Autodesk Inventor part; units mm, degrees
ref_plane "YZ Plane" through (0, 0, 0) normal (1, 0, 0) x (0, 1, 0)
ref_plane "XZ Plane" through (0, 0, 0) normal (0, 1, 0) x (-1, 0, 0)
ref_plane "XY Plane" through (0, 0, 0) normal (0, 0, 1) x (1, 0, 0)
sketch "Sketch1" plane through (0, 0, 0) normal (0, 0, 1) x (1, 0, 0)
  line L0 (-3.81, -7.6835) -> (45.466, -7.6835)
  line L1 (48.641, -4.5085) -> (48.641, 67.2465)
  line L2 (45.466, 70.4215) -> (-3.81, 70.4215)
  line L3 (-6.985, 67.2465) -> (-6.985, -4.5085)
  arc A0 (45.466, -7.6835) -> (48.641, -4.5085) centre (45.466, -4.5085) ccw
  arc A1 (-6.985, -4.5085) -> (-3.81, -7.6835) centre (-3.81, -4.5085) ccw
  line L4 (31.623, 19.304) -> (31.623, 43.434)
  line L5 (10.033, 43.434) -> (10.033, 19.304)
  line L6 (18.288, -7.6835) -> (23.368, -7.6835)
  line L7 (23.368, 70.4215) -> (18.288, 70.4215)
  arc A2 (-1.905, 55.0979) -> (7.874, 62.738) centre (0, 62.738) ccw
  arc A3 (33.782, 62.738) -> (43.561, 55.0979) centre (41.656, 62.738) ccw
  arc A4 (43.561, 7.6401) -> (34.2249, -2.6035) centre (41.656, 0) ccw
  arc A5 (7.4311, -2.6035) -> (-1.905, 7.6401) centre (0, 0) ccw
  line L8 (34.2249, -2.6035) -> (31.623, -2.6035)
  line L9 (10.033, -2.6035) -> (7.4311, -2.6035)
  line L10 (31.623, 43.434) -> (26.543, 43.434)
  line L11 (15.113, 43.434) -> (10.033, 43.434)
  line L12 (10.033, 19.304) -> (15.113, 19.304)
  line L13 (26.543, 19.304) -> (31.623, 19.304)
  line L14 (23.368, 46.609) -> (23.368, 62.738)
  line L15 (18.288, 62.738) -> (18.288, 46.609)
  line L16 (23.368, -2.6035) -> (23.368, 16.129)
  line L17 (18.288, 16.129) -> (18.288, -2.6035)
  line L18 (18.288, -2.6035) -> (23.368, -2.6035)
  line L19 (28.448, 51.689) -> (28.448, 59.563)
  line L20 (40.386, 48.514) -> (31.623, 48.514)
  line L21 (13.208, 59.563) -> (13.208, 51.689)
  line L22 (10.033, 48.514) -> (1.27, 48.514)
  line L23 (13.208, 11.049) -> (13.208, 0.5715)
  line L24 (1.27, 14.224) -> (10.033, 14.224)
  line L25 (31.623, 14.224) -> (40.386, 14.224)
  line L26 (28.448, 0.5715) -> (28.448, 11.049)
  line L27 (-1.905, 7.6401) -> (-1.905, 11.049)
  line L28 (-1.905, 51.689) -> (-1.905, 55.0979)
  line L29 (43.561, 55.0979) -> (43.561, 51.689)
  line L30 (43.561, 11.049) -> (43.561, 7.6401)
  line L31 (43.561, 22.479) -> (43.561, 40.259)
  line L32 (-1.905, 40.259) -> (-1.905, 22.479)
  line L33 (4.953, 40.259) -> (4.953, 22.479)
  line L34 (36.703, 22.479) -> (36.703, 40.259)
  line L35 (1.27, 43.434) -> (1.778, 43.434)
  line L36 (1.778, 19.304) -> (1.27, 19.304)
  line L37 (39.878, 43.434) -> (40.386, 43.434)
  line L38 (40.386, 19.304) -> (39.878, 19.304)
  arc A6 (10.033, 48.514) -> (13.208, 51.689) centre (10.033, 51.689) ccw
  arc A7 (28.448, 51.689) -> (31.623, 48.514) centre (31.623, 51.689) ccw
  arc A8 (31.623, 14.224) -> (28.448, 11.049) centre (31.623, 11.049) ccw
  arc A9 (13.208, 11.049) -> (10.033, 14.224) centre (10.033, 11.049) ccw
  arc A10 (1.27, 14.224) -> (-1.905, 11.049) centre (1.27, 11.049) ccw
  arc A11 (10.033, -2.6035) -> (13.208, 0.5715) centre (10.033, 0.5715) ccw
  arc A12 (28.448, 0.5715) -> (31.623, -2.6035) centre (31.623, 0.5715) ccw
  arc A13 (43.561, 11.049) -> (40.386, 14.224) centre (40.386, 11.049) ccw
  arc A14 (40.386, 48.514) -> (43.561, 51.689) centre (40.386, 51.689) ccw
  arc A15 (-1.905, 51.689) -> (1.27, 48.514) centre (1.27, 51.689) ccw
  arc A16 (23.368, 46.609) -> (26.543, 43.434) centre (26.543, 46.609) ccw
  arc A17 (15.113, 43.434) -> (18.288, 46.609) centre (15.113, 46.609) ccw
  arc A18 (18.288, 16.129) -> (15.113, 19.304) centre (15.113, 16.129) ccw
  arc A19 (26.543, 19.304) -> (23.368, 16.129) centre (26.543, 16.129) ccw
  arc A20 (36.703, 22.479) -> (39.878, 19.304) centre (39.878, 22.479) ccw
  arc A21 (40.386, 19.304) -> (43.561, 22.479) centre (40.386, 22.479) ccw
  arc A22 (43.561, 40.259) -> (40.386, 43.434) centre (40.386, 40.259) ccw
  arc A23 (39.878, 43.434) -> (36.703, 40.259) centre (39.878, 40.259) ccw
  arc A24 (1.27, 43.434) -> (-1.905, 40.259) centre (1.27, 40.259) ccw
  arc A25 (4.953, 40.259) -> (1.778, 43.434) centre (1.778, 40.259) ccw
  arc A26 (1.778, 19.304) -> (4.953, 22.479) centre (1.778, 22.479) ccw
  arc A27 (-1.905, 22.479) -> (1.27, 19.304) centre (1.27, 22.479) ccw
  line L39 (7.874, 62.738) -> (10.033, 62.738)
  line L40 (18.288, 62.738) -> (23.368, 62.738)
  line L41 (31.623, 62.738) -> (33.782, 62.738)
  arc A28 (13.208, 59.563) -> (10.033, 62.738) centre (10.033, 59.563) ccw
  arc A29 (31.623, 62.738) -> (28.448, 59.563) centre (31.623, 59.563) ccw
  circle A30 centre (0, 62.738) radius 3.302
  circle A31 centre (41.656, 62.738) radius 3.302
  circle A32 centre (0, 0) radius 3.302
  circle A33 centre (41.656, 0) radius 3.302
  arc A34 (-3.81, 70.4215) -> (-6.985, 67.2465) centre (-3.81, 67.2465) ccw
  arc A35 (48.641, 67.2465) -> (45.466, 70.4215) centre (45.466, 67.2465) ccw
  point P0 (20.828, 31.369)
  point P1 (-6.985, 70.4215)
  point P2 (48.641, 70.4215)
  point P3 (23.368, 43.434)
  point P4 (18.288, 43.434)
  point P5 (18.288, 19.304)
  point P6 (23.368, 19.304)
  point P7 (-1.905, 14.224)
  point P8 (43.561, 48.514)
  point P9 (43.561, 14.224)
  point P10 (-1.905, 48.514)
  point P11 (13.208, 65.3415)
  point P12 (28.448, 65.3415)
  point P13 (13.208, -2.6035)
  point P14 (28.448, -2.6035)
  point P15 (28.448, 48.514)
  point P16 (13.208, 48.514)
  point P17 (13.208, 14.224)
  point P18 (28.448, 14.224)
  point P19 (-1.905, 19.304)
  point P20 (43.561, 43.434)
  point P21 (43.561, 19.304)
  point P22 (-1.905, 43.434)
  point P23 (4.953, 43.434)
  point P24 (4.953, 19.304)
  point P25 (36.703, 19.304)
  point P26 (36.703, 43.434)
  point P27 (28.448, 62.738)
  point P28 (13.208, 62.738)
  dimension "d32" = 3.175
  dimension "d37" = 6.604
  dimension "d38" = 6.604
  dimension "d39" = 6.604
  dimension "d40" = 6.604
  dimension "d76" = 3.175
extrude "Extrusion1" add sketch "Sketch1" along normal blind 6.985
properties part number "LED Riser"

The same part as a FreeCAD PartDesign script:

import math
import FreeCAD as App
import Part
import Sketcher
from FreeCAD import Vector
Q = App.Units.Quantity

doc = App.newDocument("Part")
body = doc.addObject("PartDesign::Body", "Body")

# Sketch on XY plane
sketch1 = body.newObject("Sketcher::SketchObject", "Sketch")
sketch1.AttachmentSupport = (doc.getObject("XY_Plane"), [""])
sketch1.MapMode = "FlatFace"
sketch1.addGeometry([
    Part.ArcOfCircle(Part.Circle(Vector(-3.8, -4.5, 0), Vector(0, 0, 1), 3.2), math.radians(180), math.radians(270)),  # 0
    Part.LineSegment(Vector(-3.8, -7.7, 0), Vector(45.5, -7.7, 0)),  # 1
    Part.ArcOfCircle(Part.Circle(Vector(45.5, -4.5, 0), Vector(0, 0, 1), 3.2), math.radians(-90), math.radians(0)),  # 2
    Part.LineSegment(Vector(48.6, -4.5, 0), Vector(48.6, 67.2, 0)),  # 3
    Part.ArcOfCircle(Part.Circle(Vector(45.5, 67.2, 0), Vector(0, 0, 1), 3.2), math.radians(0), math.radians(90)),  # 4
    Part.LineSegment(Vector(45.5, 70.4, 0), Vector(-3.8, 70.4, 0)),  # 5
    Part.ArcOfCircle(Part.Circle(Vector(-3.8, 67.2, 0), Vector(0, 0, 1), 3.2), math.radians(90), math.radians(180)),  # 6
    Part.LineSegment(Vector(-7, 67.2, 0), Vector(-7, -4.5, 0)),  # 7
    Part.Circle(Vector(0, 0, 0), Vector(0, 0, 1), 3.3),  # 8
    Part.LineSegment(Vector(10, -2.6, 0), Vector(7.4, -2.6, 0)),  # 9
    Part.ArcOfCircle(Part.Circle(Vector(0, 0, 0), Vector(0, 0, 1), 7.9), math.radians(-19), math.radians(104)),  # 10
    Part.LineSegment(Vector(-1.9, 7.6, 0), Vector(-1.9, 11, 0)),  # 11
    Part.ArcOfCircle(Part.Circle(Vector(1.3, 11, 0), Vector(0, 0, 1), 3.2), math.radians(90), math.radians(180)),  # 12
    Part.LineSegment(Vector(1.3, 14.2, 0), Vector(10, 14.2, 0)),  # 13
    Part.ArcOfCircle(Part.Circle(Vector(10, 11, 0), Vector(0, 0, 1), 3.2), math.radians(0), math.radians(90)),  # 14
    Part.LineSegment(Vector(13.2, 11, 0), Vector(13.2, 0.6, 0)),  # 15
    Part.ArcOfCircle(Part.Circle(Vector(10, 0.6, 0), Vector(0, 0, 1), 3.2), math.radians(-90), math.radians(0)),  # 16
    Part.LineSegment(Vector(31.6, 43.4, 0), Vector(31.6, 19.3, 0)),  # 17
    Part.LineSegment(Vector(31.6, 19.3, 0), Vector(26.5, 19.3, 0)),  # 18
    Part.ArcOfCircle(Part.Circle(Vector(26.5, 16.1, 0), Vector(0, 0, 1), 3.2), math.radians(90), math.radians(180)),  # 19
    Part.LineSegment(Vector(23.4, 16.1, 0), Vector(23.4, -2.6, 0)),  # 20
    Part.LineSegment(Vector(23.4, -2.6, 0), Vector(18.3, -2.6, 0)),  # 21
    Part.LineSegment(Vector(18.3, -2.6, 0), Vector(18.3, 16.1, 0)),  # 22
    Part.ArcOfCircle(Part.Circle(Vector(15.1, 16.1, 0), Vector(0, 0, 1), 3.2), math.radians(0), math.radians(90)),  # 23
    Part.LineSegment(Vector(15.1, 19.3, 0), Vector(10, 19.3, 0)),  # 24
    Part.LineSegment(Vector(10, 19.3, 0), Vector(10, 43.4, 0)),  # 25
    Part.LineSegment(Vector(10, 43.4, 0), Vector(15.1, 43.4, 0)),  # 26
    Part.ArcOfCircle(Part.Circle(Vector(15.1, 46.6, 0), Vector(0, 0, 1), 3.2), math.radians(-90), math.radians(0)),  # 27
    Part.LineSegment(Vector(18.3, 46.6, 0), Vector(18.3, 62.7, 0)),  # 28
    Part.LineSegment(Vector(18.3, 62.7, 0), Vector(23.4, 62.7, 0)),  # 29
    Part.LineSegment(Vector(23.4, 62.7, 0), Vector(23.4, 46.6, 0)),  # 30
    Part.ArcOfCircle(Part.Circle(Vector(26.5, 46.6, 0), Vector(0, 0, 1), 3.2), math.radians(180), math.radians(270)),  # 31
    Part.LineSegment(Vector(26.5, 43.4, 0), Vector(31.6, 43.4, 0)),  # 32
    Part.Circle(Vector(41.7, 0, 0), Vector(0, 0, 1), 3.3),  # 33
    Part.LineSegment(Vector(43.6, 11, 0), Vector(43.6, 7.6, 0)),  # 34
    Part.ArcOfCircle(Part.Circle(Vector(41.7, 0, 0), Vector(0, 0, 1), 7.9), math.radians(76), math.radians(199)),  # 35
    Part.LineSegment(Vector(34.2, -2.6, 0), Vector(31.6, -2.6, 0)),  # 36
    Part.ArcOfCircle(Part.Circle(Vector(31.6, 0.6, 0), Vector(0, 0, 1), 3.2), math.radians(180), math.radians(270)),  # 37
    Part.LineSegment(Vector(28.4, 0.6, 0), Vector(28.4, 11, 0)),  # 38
    Part.ArcOfCircle(Part.Circle(Vector(31.6, 11, 0), Vector(0, 0, 1), 3.2), math.radians(90), math.radians(180)),  # 39
    Part.LineSegment(Vector(31.6, 14.2, 0), Vector(40.4, 14.2, 0)),  # 40
    Part.ArcOfCircle(Part.Circle(Vector(40.4, 11, 0), Vector(0, 0, 1), 3.2), math.radians(0), math.radians(90)),  # 41
    Part.LineSegment(Vector(-1.9, 22.5, 0), Vector(-1.9, 40.3, 0)),  # 42
    Part.ArcOfCircle(Part.Circle(Vector(1.3, 40.3, 0), Vector(0, 0, 1), 3.2), math.radians(90), math.radians(180)),  # 43
    Part.LineSegment(Vector(1.3, 43.4, 0), Vector(1.8, 43.4, 0)),  # 44
    Part.ArcOfCircle(Part.Circle(Vector(1.8, 40.3, 0), Vector(0, 0, 1), 3.2), math.radians(0), math.radians(90)),  # 45
    Part.LineSegment(Vector(5, 40.3, 0), Vector(5, 22.5, 0)),  # 46
    Part.ArcOfCircle(Part.Circle(Vector(1.8, 22.5, 0), Vector(0, 0, 1), 3.2), math.radians(-90), math.radians(0)),  # 47
    Part.LineSegment(Vector(1.8, 19.3, 0), Vector(1.3, 19.3, 0)),  # 48
    Part.ArcOfCircle(Part.Circle(Vector(1.3, 22.5, 0), Vector(0, 0, 1), 3.2), math.radians(180), math.radians(270)),  # 49
    Part.LineSegment(Vector(-1.9, 51.7, 0), Vector(-1.9, 55.1, 0)),  # 50
    Part.ArcOfCircle(Part.Circle(Vector(0, 62.7, 0), Vector(0, 0, 1), 7.9), math.radians(-104), math.radians(0)),  # 51
    Part.LineSegment(Vector(7.9, 62.7, 0), Vector(10, 62.7, 0)),  # 52
    Part.ArcOfCircle(Part.Circle(Vector(10, 59.6, 0), Vector(0, 0, 1), 3.2), math.radians(0), math.radians(90)),  # 53
    Part.LineSegment(Vector(13.2, 59.6, 0), Vector(13.2, 51.7, 0)),  # 54
    Part.ArcOfCircle(Part.Circle(Vector(10, 51.7, 0), Vector(0, 0, 1), 3.2), math.radians(-90), math.radians(0)),  # 55
    Part.LineSegment(Vector(10, 48.5, 0), Vector(1.3, 48.5, 0)),  # 56
    Part.ArcOfCircle(Part.Circle(Vector(1.3, 51.7, 0), Vector(0, 0, 1), 3.2), math.radians(180), math.radians(270)),  # 57
    Part.Circle(Vector(0, 62.7, 0), Vector(0, 0, 1), 3.3),  # 58
    Part.LineSegment(Vector(43.6, 40.3, 0), Vector(43.6, 22.5, 0)),  # 59
    Part.ArcOfCircle(Part.Circle(Vector(40.4, 22.5, 0), Vector(0, 0, 1), 3.2), math.radians(-90), math.radians(0)),  # 60
    Part.LineSegment(Vector(40.4, 19.3, 0), Vector(39.9, 19.3, 0)),  # 61
    Part.ArcOfCircle(Part.Circle(Vector(39.9, 22.5, 0), Vector(0, 0, 1), 3.2), math.radians(180), math.radians(270)),  # 62
    Part.LineSegment(Vector(36.7, 22.5, 0), Vector(36.7, 40.3, 0)),  # 63
    Part.ArcOfCircle(Part.Circle(Vector(39.9, 40.3, 0), Vector(0, 0, 1), 3.2), math.radians(90), math.radians(180)),  # 64
    Part.LineSegment(Vector(39.9, 43.4, 0), Vector(40.4, 43.4, 0)),  # 65
    Part.ArcOfCircle(Part.Circle(Vector(40.4, 40.3, 0), Vector(0, 0, 1), 3.2), math.radians(0), math.radians(90)),  # 66
    Part.LineSegment(Vector(31.6, 62.7, 0), Vector(33.8, 62.7, 0)),  # 67
    Part.ArcOfCircle(Part.Circle(Vector(41.7, 62.7, 0), Vector(0, 0, 1), 7.9), math.radians(180), math.radians(284)),  # 68
    Part.LineSegment(Vector(43.6, 55.1, 0), Vector(43.6, 51.7, 0)),  # 69
    Part.ArcOfCircle(Part.Circle(Vector(40.4, 51.7, 0), Vector(0, 0, 1), 3.2), math.radians(-90), math.radians(0)),  # 70
    Part.LineSegment(Vector(40.4, 48.5, 0), Vector(31.6, 48.5, 0)),  # 71
    Part.ArcOfCircle(Part.Circle(Vector(31.6, 51.7, 0), Vector(0, 0, 1), 3.2), math.radians(180), math.radians(270)),  # 72
    Part.LineSegment(Vector(28.4, 51.7, 0), Vector(28.4, 59.6, 0)),  # 73
    Part.ArcOfCircle(Part.Circle(Vector(31.6, 59.6, 0), Vector(0, 0, 1), 3.2), math.radians(90), math.radians(180)),  # 74
    Part.Circle(Vector(41.7, 62.7, 0), Vector(0, 0, 1), 3.3),  # 75
], False)
sketch1.addConstraint([
    Sketcher.Constraint("Tangent", 0, 2, 1, 1),
    Sketcher.Constraint("Tangent", 1, 2, 2, 1),
    Sketcher.Constraint("Tangent", 2, 2, 3, 1),
    Sketcher.Constraint("Tangent", 3, 2, 4, 1),
    Sketcher.Constraint("Tangent", 4, 2, 5, 1),
    Sketcher.Constraint("Tangent", 5, 2, 6, 1),
    Sketcher.Constraint("Tangent", 6, 2, 7, 1),
    Sketcher.Constraint("Tangent", 7, 2, 0, 1),
    Sketcher.Constraint("Coincident", 9, 2, 10, 1),
    Sketcher.Constraint("Coincident", 10, 2, 11, 1),
    Sketcher.Constraint("Tangent", 11, 2, 12, 2),
    Sketcher.Constraint("Tangent", 12, 1, 13, 1),
    Sketcher.Constraint("Tangent", 13, 2, 14, 2),
    Sketcher.Constraint("Tangent", 14, 1, 15, 1),
    Sketcher.Constraint("Tangent", 15, 2, 16, 2),
    Sketcher.Constraint("Tangent", 16, 1, 9, 1),
    Sketcher.Constraint("Coincident", 17, 2, 18, 1),
    Sketcher.Constraint("Tangent", 18, 2, 19, 1),
    Sketcher.Constraint("Tangent", 19, 2, 20, 1),
    Sketcher.Constraint("Coincident", 20, 2, 21, 1),
    Sketcher.Constraint("Coincident", 21, 2, 22, 1),
    Sketcher.Constraint("Tangent", 22, 2, 23, 1),
    Sketcher.Constraint("Tangent", 23, 2, 24, 1),
    Sketcher.Constraint("Coincident", 24, 2, 25, 1),
    Sketcher.Constraint("Coincident", 25, 2, 26, 1),
    Sketcher.Constraint("Tangent", 26, 2, 27, 1),
    Sketcher.Constraint("Tangent", 27, 2, 28, 1),
    Sketcher.Constraint("Coincident", 28, 2, 29, 1),
    Sketcher.Constraint("Coincident", 29, 2, 30, 1),
    Sketcher.Constraint("Tangent", 30, 2, 31, 1),
    Sketcher.Constraint("Tangent", 31, 2, 32, 1),
    Sketcher.Constraint("Coincident", 32, 2, 17, 1),
    Sketcher.Constraint("Coincident", 34, 2, 35, 1),
    Sketcher.Constraint("Coincident", 35, 2, 36, 1),
    Sketcher.Constraint("Tangent", 36, 2, 37, 2),
    Sketcher.Constraint("Tangent", 37, 1, 38, 1),
    Sketcher.Constraint("Tangent", 38, 2, 39, 2),
    Sketcher.Constraint("Tangent", 39, 1, 40, 1),
    Sketcher.Constraint("Tangent", 40, 2, 41, 2),
    Sketcher.Constraint("Tangent", 41, 1, 34, 1),
    Sketcher.Constraint("Tangent", 42, 2, 43, 2),
    Sketcher.Constraint("Tangent", 43, 1, 44, 1),
    Sketcher.Constraint("Tangent", 44, 2, 45, 2),
    Sketcher.Constraint("Tangent", 45, 1, 46, 1),
    Sketcher.Constraint("Tangent", 46, 2, 47, 2),
    Sketcher.Constraint("Tangent", 47, 1, 48, 1),
    Sketcher.Constraint("Tangent", 48, 2, 49, 2),
    Sketcher.Constraint("Tangent", 49, 1, 42, 1),
    Sketcher.Constraint("Coincident", 50, 2, 51, 1),
    Sketcher.Constraint("Coincident", 51, 2, 52, 1),
    Sketcher.Constraint("Tangent", 52, 2, 53, 2),
    Sketcher.Constraint("Tangent", 53, 1, 54, 1),
    Sketcher.Constraint("Tangent", 54, 2, 55, 2),
    Sketcher.Constraint("Tangent", 55, 1, 56, 1),
    Sketcher.Constraint("Tangent", 56, 2, 57, 2),
    Sketcher.Constraint("Tangent", 57, 1, 50, 1),
    Sketcher.Constraint("Tangent", 59, 2, 60, 2),
    Sketcher.Constraint("Tangent", 60, 1, 61, 1),
    Sketcher.Constraint("Tangent", 61, 2, 62, 2),
    Sketcher.Constraint("Tangent", 62, 1, 63, 1),
    Sketcher.Constraint("Tangent", 63, 2, 64, 2),
    Sketcher.Constraint("Tangent", 64, 1, 65, 1),
    Sketcher.Constraint("Tangent", 65, 2, 66, 2),
    Sketcher.Constraint("Tangent", 66, 1, 59, 1),
    Sketcher.Constraint("Coincident", 67, 2, 68, 1),
    Sketcher.Constraint("Coincident", 68, 2, 69, 1),
    Sketcher.Constraint("Tangent", 69, 2, 70, 2),
    Sketcher.Constraint("Tangent", 70, 1, 71, 1),
    Sketcher.Constraint("Tangent", 71, 2, 72, 2),
    Sketcher.Constraint("Tangent", 72, 1, 73, 1),
    Sketcher.Constraint("Tangent", 73, 2, 74, 2),
    Sketcher.Constraint("Tangent", 74, 1, 67, 1),
    Sketcher.Constraint("Horizontal", 1),
    Sketcher.Constraint("Vertical", 3),
    Sketcher.Constraint("Horizontal", 5),
    Sketcher.Constraint("Vertical", 7),
    Sketcher.Constraint("Horizontal", 9),
    Sketcher.Constraint("Vertical", 11),
    Sketcher.Constraint("Horizontal", 13),
    Sketcher.Constraint("Vertical", 15),
    Sketcher.Constraint("Vertical", 17),
    Sketcher.Constraint("Horizontal", 18),
    Sketcher.Constraint("Vertical", 20),
    Sketcher.Constraint("Horizontal", 21),
    Sketcher.Constraint("Vertical", 22),
    Sketcher.Constraint("Horizontal", 24),
    Sketcher.Constraint("Vertical", 25),
    Sketcher.Constraint("Horizontal", 26),
    Sketcher.Constraint("Vertical", 28),
    Sketcher.Constraint("Horizontal", 29),
    Sketcher.Constraint("Vertical", 30),
    Sketcher.Constraint("Horizontal", 32),
    Sketcher.Constraint("Vertical", 34),
    Sketcher.Constraint("Horizontal", 36),
    Sketcher.Constraint("Vertical", 38),
    Sketcher.Constraint("Horizontal", 40),
    Sketcher.Constraint("Vertical", 42),
    Sketcher.Constraint("Horizontal", 44),
    Sketcher.Constraint("Vertical", 46),
    Sketcher.Constraint("Horizontal", 48),
    Sketcher.Constraint("Vertical", 50),
    Sketcher.Constraint("Horizontal", 52),
    Sketcher.Constraint("Vertical", 54),
    Sketcher.Constraint("Horizontal", 56),
    Sketcher.Constraint("Vertical", 59),
    Sketcher.Constraint("Horizontal", 61),
    Sketcher.Constraint("Vertical", 63),
    Sketcher.Constraint("Horizontal", 65),
    Sketcher.Constraint("Horizontal", 67),
    Sketcher.Constraint("Vertical", 69),
    Sketcher.Constraint("Horizontal", 71),
    Sketcher.Constraint("Vertical", 73),
    Sketcher.Constraint("Coincident", 8, 3, -1, 1),
    Sketcher.Constraint("Coincident", 10, 3, -1, 1),
    Sketcher.Constraint("Coincident", 35, 3, 33, 3),
    Sketcher.Constraint("Coincident", 58, 3, 51, 3),
    Sketcher.Constraint("Coincident", 75, 3, 68, 3),
    Sketcher.Constraint("Equal", 0, 2),
    Sketcher.Constraint("Equal", 2, 4),
    Sketcher.Constraint("Equal", 4, 6),
    Sketcher.Constraint("Equal", 6, 12),
    Sketcher.Constraint("Equal", 12, 14),
    Sketcher.Constraint("Equal", 14, 16),
    Sketcher.Constraint("Equal", 16, 19),
    Sketcher.Constraint("Equal", 19, 23),
    Sketcher.Constraint("Equal", 23, 27),
    Sketcher.Constraint("Equal", 27, 31),
    Sketcher.Constraint("Equal", 8, 33),
    Sketcher.Constraint("Equal", 10, 35),
    Sketcher.Constraint("Equal", 31, 37),
    Sketcher.Constraint("Equal", 37, 39),
    Sketcher.Constraint("Equal", 39, 41),
    Sketcher.Constraint("Equal", 41, 43),
    Sketcher.Constraint("Equal", 43, 45),
    Sketcher.Constraint("Equal", 45, 47),
    Sketcher.Constraint("Equal", 47, 49),
    Sketcher.Constraint("Equal", 35, 51),
    Sketcher.Constraint("Equal", 49, 53),
    Sketcher.Constraint("Equal", 53, 55),
    Sketcher.Constraint("Equal", 55, 57),
    Sketcher.Constraint("Equal", 33, 58),
    Sketcher.Constraint("Equal", 57, 60),
    Sketcher.Constraint("Equal", 60, 62),
    Sketcher.Constraint("Equal", 62, 64),
    Sketcher.Constraint("Equal", 64, 66),
    Sketcher.Constraint("Equal", 51, 68),
    Sketcher.Constraint("Equal", 66, 70),
    Sketcher.Constraint("Equal", 70, 72),
    Sketcher.Constraint("Equal", 72, 74),
    Sketcher.Constraint("Equal", 58, 75),
    Sketcher.Constraint("PointOnObject", 33, 3, -1),
    Sketcher.Constraint("PointOnObject", 51, 3, -2),
    Sketcher.Constraint("Horizontal", 19, 3, 23, 3),
    Sketcher.Constraint("Horizontal", 27, 3, 31, 3),
    Sketcher.Constraint("Horizontal", 16, 3, 37, 3),
    Sketcher.Constraint("Horizontal", 14, 3, 39, 3),
    Sketcher.Constraint("Horizontal", 49, 3, 60, 3),
    Sketcher.Constraint("Horizontal", 45, 3, 64, 3),
    Sketcher.Constraint("Horizontal", 58, 3, 68, 3),
    Sketcher.Constraint("Horizontal", 57, 3, 70, 3),
    Sketcher.Constraint("Horizontal", 53, 3, 74, 3),
    Sketcher.Constraint("Horizontal", 16, 1, 20, 2),
    Sketcher.Constraint("Horizontal", 75, 3, 28, 2),
    Sketcher.Constraint("Horizontal", 10, 2, 34, 2),
    Sketcher.Constraint("Horizontal", 32, 2, 43, 1),
    Sketcher.Constraint("Horizontal", 24, 2, 47, 1),
    Sketcher.Constraint("Horizontal", 29, 2, 51, 2),
    Sketcher.Constraint("Horizontal", 50, 2, 68, 2),
    Sketcher.Constraint("Vertical", 23, 3, 27, 3),
    Sketcher.Constraint("Vertical", 19, 3, 31, 3),
    Sketcher.Constraint("Vertical", 12, 3, 43, 3),
    Sketcher.Constraint("Vertical", 16, 3, 53, 3),
    Sketcher.Constraint("Vertical", 49, 3, 57, 3),
    Sketcher.Constraint("Vertical", 41, 3, 60, 3),
    Sketcher.Constraint("Vertical", 35, 3, 68, 3),
    Sketcher.Constraint("Vertical", 39, 3, 72, 3),
    Sketcher.Constraint("Vertical", 74, 3, 17, 2),
    Sketcher.Constraint("Vertical", 16, 1, 24, 2),
    Sketcher.Constraint("Equal", 18, 21),
    Sketcher.Constraint("Equal", 21, 24),
    Sketcher.Constraint("Equal", 9, 36),
    Sketcher.Constraint("Equal", 48, 61),
    Sketcher.Constraint("Equal", 34, 50),
    Sketcher.Constraint("Diameter", 8, Q("0.26 in")),
    Sketcher.Constraint("Radius", 0, Q("0.125 in")),
    Sketcher.Constraint("Radius", 10, Q("0.31 in")),
    Sketcher.Constraint("DistanceX", 18, 2, 18, 1, Q("0.2 in")),
    Sketcher.Constraint("DistanceY", 42, 1, 42, 2, Q("0.7 in")),
    Sketcher.Constraint("DistanceX", 1, 1, 1, 2, Q("1.94 in")),
    Sketcher.Constraint("DistanceX", 44, 1, 44, 2, Q("0.02 in")),
    Sketcher.Constraint("DistanceY", 54, 2, 54, 1, Q("0.31 in")),
    Sketcher.Constraint("DistanceX", 13, 1, 13, 2, Q("0.345 in")),
    Sketcher.Constraint("DistanceX", 52, 1, 52, 2, Q("0.085 in")),
    Sketcher.Constraint("DistanceY", 3, 1, 3, 2, Q("2.825 in")),
    Sketcher.Constraint("DistanceY", 28, 1, 28, 2, Q("0.635 in")),
    Sketcher.Constraint("DistanceX", 0, 3, -1, 1, Q("0.15 in")),
    Sketcher.Constraint("DistanceY", -1, 1, 51, 3, Q("2.47 in")),
    Sketcher.Constraint("DistanceY", 15, 2, 15, 1, Q("0.4125 in")),
    Sketcher.Constraint("DistanceY", 0, 3, -1, 1, Q("0.1775 in")),
])
pad1 = body.newObject("PartDesign::Pad", "Pad")
pad1.Profile = sketch1
pad1.Length = Q("0.275 in")

doc.recompute()
